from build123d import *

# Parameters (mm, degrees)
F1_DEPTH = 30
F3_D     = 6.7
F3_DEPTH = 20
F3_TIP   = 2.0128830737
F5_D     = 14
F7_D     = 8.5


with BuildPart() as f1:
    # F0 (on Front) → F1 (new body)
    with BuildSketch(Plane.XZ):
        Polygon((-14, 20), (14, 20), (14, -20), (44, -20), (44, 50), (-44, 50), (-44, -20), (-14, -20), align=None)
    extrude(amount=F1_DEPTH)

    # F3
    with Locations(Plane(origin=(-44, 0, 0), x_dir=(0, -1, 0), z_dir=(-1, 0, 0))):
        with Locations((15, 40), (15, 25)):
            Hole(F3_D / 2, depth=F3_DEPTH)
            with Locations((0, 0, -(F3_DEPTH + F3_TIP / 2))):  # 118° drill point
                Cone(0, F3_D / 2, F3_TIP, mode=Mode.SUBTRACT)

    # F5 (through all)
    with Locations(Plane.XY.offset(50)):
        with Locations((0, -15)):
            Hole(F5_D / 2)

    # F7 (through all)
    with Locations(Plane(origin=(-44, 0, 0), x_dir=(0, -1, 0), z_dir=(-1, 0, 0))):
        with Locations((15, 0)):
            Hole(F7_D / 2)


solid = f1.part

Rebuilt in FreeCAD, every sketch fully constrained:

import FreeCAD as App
import Part
import Sketcher

doc = App.newDocument("Part")
params = doc.addObject("Spreadsheet::Sheet", "Params")
for row, (alias, value) in enumerate([
    ("sketch1_width", "28 mm"),
    ("sketch1_width2", "30 mm"),
    ("sketch1_height", "40 mm"),
    ("sketch1_height2", "70 mm"),
    ("pad1_length", "30 mm"),
    ("sketch2_diameter", "6.7 mm"),
    ("hole_diameter", "6.7 mm"),
    ("hole_depth", "20 mm"),
    ("sketch3_diameter", "14 mm"),
    ("hole2_diameter", "14 mm"),
    ("sketch4_diameter", "8.5 mm"),
    ("hole3_diameter", "8.5 mm"),
], start=1):
    params.set(f"A{row}", alias)
    params.set(f"B{row}", "=" + value)
    params.setAlias(f"B{row}", alias)

body = doc.addObject("PartDesign::Body", "Body")

sketch1 = body.newObject("Sketcher::SketchObject", "Sketch")
sketch1.AttachmentSupport = (doc.getObject("XZ_Plane"), [""])
sketch1.MapMode = "FlatFace"
sketch1.addGeometry(Part.LineSegment(App.Vector(-14, 20, 0), App.Vector(14, 20, 0)), False)
sketch1.addGeometry(Part.LineSegment(App.Vector(14, 20, 0), App.Vector(14, -20, 0)), False)
sketch1.addGeometry(Part.LineSegment(App.Vector(14, -20, 0), App.Vector(44, -20, 0)), False)
sketch1.addGeometry(Part.LineSegment(App.Vector(44, -20, 0), App.Vector(44, 50, 0)), False)
sketch1.addGeometry(Part.LineSegment(App.Vector(44, 50, 0), App.Vector(-44, 50, 0)), False)
sketch1.addGeometry(Part.LineSegment(App.Vector(-44, 50, 0), App.Vector(-44, -20, 0)), False)
sketch1.addGeometry(Part.LineSegment(App.Vector(-44, -20, 0), App.Vector(-14, -20, 0)), False)
sketch1.addGeometry(Part.LineSegment(App.Vector(-14, -20, 0), App.Vector(-14, 20, 0)), False)
sketch1.addConstraint(Sketcher.Constraint("Coincident", 0, 2, 1, 1))
sketch1.addConstraint(Sketcher.Constraint("Coincident", 1, 2, 2, 1))
sketch1.addConstraint(Sketcher.Constraint("Coincident", 2, 2, 3, 1))
sketch1.addConstraint(Sketcher.Constraint("Coincident", 3, 2, 4, 1))
sketch1.addConstraint(Sketcher.Constraint("Coincident", 4, 2, 5, 1))
sketch1.addConstraint(Sketcher.Constraint("Coincident", 5, 2, 6, 1))
sketch1.addConstraint(Sketcher.Constraint("Coincident", 6, 2, 7, 1))
sketch1.addConstraint(Sketcher.Constraint("Coincident", 7, 2, 0, 1))
sketch1.addConstraint(Sketcher.Constraint("Horizontal", 0))
sketch1.addConstraint(Sketcher.Constraint("Vertical", 1))
sketch1.addConstraint(Sketcher.Constraint("Horizontal", 2))
sketch1.addConstraint(Sketcher.Constraint("Vertical", 3))
sketch1.addConstraint(Sketcher.Constraint("Horizontal", 4))
sketch1.addConstraint(Sketcher.Constraint("Vertical", 5))
sketch1.addConstraint(Sketcher.Constraint("Horizontal", 6))
sketch1.addConstraint(Sketcher.Constraint("Vertical", 7))
sketch1.addConstraint(Sketcher.Constraint("Symmetric", 0, 2, 6, 2, -1, 1))
sketch1.addConstraint(Sketcher.Constraint("Symmetric", 2, 2, 5, 2, -2))
sketch1.addConstraint(Sketcher.Constraint("DistanceX", 0, 1, 0, 2, 28.0))
sketch1.addConstraint(Sketcher.Constraint("DistanceX", 2, 1, 2, 2, 30.0))
sketch1.addConstraint(Sketcher.Constraint("DistanceY", 1, 2, 1, 1, 40.0))
sketch1.addConstraint(Sketcher.Constraint("DistanceY", 3, 1, 3, 2, 70.0))
sketch1.setExpression("Constraints[18]", "Params.sketch1_width")
sketch1.setExpression("Constraints[19]", "Params.sketch1_width2")
sketch1.setExpression("Constraints[20]", "Params.sketch1_height")
sketch1.setExpression("Constraints[21]", "Params.sketch1_height2")
pad1 = body.newObject("PartDesign::Pad", "Pad")
pad1.Profile = sketch1
pad1.setExpression("Length", "Params.pad1_length")

sketch2 = body.newObject("Sketcher::SketchObject", "Sketch001")
sketch2.AttachmentSupport = (doc.getObject("YZ_Plane"), [""])
sketch2.MapMode = "FlatFace"
sketch2.AttachmentOffset = App.Placement(App.Vector(0, 0, -44), App.Rotation())
sketch2.addGeometry(Part.Circle(App.Vector(-15, 40, 0), App.Vector(0, 0, 1), 3.4), False)
sketch2.addGeometry(Part.Circle(App.Vector(-15, 25, 0), App.Vector(0, 0, 1), 3.4), False)
sketch2.addConstraint(Sketcher.Constraint("Equal", 0, 1))
sketch2.addConstraint(Sketcher.Constraint("Vertical", 0, 3, 1, 3))
sketch2.addConstraint(Sketcher.Constraint("Diameter", 0, 6.7))
sketch2.addConstraint(Sketcher.Constraint("DistanceX", 0, 3, -1, 1, 15.0))
sketch2.addConstraint(Sketcher.Constraint("DistanceY", -1, 1, 0, 3, 40.0))
sketch2.addConstraint(Sketcher.Constraint("DistanceY", -1, 1, 1, 3, 25.0))
sketch2.setExpression("Constraints[2]", "Params.sketch2_diameter")
doc.recompute()
hole = body.newObject("PartDesign::Hole", "Hole")
hole.Profile = sketch2
hole.ThreadType = "None"
hole.setExpression("Diameter", "Params.hole_diameter")
hole.DepthType = "Dimension"
hole.setExpression("Depth", "Params.hole_depth")
hole.DrillPoint = "Angled"
hole.DrillPointAngle = 118
hole.Reversed = True

sketch3 = body.newObject("Sketcher::SketchObject", "Sketch002")
sketch3.AttachmentSupport = (doc.getObject("XY_Plane"), [""])
sketch3.MapMode = "FlatFace"
sketch3.AttachmentOffset = App.Placement(App.Vector(0, 0, 50), App.Rotation())
sketch3.addGeometry(Part.Circle(App.Vector(0, -15, 0), App.Vector(0, 0, 1), 7), False)
sketch3.addConstraint(Sketcher.Constraint("PointOnObject", 0, 3, -2))
sketch3.addConstraint(Sketcher.Constraint("Diameter", 0, 14.0))
sketch3.addConstraint(Sketcher.Constraint("DistanceY", 0, 3, -1, 1, 15.0))
sketch3.setExpression("Constraints[1]", "Params.sketch3_diameter")
doc.recompute()
hole2 = body.newObject("PartDesign::Hole", "Hole001")
hole2.Profile = sketch3
hole2.ThreadType = "None"
hole2.setExpression("Diameter", "Params.hole2_diameter")
hole2.DepthType = "ThroughAll"

sketch4 = body.newObject("Sketcher::SketchObject", "Sketch003")
sketch4.AttachmentSupport = (doc.getObject("YZ_Plane"), [""])
sketch4.MapMode = "FlatFace"
sketch4.AttachmentOffset = App.Placement(App.Vector(0, 0, -44), App.Rotation())
sketch4.addGeometry(Part.Circle(App.Vector(-15, 0, 0), App.Vector(0, 0, 1), 4.2), False)
sketch4.addConstraint(Sketcher.Constraint("PointOnObject", 0, 3, -1))
sketch4.addConstraint(Sketcher.Constraint("Diameter", 0, 8.5))
sketch4.addConstraint(Sketcher.Constraint("DistanceX", 0, 3, -1, 1, 15.0))
sketch4.setExpression("Constraints[1]", "Params.sketch4_diameter")
doc.recompute()
hole3 = body.newObject("PartDesign::Hole", "Hole002")
hole3.Profile = sketch4
hole3.ThreadType = "None"
hole3.setExpression("Diameter", "Params.hole3_diameter")
hole3.DepthType = "ThroughAll"
hole3.Reversed = True

doc.recompute()
